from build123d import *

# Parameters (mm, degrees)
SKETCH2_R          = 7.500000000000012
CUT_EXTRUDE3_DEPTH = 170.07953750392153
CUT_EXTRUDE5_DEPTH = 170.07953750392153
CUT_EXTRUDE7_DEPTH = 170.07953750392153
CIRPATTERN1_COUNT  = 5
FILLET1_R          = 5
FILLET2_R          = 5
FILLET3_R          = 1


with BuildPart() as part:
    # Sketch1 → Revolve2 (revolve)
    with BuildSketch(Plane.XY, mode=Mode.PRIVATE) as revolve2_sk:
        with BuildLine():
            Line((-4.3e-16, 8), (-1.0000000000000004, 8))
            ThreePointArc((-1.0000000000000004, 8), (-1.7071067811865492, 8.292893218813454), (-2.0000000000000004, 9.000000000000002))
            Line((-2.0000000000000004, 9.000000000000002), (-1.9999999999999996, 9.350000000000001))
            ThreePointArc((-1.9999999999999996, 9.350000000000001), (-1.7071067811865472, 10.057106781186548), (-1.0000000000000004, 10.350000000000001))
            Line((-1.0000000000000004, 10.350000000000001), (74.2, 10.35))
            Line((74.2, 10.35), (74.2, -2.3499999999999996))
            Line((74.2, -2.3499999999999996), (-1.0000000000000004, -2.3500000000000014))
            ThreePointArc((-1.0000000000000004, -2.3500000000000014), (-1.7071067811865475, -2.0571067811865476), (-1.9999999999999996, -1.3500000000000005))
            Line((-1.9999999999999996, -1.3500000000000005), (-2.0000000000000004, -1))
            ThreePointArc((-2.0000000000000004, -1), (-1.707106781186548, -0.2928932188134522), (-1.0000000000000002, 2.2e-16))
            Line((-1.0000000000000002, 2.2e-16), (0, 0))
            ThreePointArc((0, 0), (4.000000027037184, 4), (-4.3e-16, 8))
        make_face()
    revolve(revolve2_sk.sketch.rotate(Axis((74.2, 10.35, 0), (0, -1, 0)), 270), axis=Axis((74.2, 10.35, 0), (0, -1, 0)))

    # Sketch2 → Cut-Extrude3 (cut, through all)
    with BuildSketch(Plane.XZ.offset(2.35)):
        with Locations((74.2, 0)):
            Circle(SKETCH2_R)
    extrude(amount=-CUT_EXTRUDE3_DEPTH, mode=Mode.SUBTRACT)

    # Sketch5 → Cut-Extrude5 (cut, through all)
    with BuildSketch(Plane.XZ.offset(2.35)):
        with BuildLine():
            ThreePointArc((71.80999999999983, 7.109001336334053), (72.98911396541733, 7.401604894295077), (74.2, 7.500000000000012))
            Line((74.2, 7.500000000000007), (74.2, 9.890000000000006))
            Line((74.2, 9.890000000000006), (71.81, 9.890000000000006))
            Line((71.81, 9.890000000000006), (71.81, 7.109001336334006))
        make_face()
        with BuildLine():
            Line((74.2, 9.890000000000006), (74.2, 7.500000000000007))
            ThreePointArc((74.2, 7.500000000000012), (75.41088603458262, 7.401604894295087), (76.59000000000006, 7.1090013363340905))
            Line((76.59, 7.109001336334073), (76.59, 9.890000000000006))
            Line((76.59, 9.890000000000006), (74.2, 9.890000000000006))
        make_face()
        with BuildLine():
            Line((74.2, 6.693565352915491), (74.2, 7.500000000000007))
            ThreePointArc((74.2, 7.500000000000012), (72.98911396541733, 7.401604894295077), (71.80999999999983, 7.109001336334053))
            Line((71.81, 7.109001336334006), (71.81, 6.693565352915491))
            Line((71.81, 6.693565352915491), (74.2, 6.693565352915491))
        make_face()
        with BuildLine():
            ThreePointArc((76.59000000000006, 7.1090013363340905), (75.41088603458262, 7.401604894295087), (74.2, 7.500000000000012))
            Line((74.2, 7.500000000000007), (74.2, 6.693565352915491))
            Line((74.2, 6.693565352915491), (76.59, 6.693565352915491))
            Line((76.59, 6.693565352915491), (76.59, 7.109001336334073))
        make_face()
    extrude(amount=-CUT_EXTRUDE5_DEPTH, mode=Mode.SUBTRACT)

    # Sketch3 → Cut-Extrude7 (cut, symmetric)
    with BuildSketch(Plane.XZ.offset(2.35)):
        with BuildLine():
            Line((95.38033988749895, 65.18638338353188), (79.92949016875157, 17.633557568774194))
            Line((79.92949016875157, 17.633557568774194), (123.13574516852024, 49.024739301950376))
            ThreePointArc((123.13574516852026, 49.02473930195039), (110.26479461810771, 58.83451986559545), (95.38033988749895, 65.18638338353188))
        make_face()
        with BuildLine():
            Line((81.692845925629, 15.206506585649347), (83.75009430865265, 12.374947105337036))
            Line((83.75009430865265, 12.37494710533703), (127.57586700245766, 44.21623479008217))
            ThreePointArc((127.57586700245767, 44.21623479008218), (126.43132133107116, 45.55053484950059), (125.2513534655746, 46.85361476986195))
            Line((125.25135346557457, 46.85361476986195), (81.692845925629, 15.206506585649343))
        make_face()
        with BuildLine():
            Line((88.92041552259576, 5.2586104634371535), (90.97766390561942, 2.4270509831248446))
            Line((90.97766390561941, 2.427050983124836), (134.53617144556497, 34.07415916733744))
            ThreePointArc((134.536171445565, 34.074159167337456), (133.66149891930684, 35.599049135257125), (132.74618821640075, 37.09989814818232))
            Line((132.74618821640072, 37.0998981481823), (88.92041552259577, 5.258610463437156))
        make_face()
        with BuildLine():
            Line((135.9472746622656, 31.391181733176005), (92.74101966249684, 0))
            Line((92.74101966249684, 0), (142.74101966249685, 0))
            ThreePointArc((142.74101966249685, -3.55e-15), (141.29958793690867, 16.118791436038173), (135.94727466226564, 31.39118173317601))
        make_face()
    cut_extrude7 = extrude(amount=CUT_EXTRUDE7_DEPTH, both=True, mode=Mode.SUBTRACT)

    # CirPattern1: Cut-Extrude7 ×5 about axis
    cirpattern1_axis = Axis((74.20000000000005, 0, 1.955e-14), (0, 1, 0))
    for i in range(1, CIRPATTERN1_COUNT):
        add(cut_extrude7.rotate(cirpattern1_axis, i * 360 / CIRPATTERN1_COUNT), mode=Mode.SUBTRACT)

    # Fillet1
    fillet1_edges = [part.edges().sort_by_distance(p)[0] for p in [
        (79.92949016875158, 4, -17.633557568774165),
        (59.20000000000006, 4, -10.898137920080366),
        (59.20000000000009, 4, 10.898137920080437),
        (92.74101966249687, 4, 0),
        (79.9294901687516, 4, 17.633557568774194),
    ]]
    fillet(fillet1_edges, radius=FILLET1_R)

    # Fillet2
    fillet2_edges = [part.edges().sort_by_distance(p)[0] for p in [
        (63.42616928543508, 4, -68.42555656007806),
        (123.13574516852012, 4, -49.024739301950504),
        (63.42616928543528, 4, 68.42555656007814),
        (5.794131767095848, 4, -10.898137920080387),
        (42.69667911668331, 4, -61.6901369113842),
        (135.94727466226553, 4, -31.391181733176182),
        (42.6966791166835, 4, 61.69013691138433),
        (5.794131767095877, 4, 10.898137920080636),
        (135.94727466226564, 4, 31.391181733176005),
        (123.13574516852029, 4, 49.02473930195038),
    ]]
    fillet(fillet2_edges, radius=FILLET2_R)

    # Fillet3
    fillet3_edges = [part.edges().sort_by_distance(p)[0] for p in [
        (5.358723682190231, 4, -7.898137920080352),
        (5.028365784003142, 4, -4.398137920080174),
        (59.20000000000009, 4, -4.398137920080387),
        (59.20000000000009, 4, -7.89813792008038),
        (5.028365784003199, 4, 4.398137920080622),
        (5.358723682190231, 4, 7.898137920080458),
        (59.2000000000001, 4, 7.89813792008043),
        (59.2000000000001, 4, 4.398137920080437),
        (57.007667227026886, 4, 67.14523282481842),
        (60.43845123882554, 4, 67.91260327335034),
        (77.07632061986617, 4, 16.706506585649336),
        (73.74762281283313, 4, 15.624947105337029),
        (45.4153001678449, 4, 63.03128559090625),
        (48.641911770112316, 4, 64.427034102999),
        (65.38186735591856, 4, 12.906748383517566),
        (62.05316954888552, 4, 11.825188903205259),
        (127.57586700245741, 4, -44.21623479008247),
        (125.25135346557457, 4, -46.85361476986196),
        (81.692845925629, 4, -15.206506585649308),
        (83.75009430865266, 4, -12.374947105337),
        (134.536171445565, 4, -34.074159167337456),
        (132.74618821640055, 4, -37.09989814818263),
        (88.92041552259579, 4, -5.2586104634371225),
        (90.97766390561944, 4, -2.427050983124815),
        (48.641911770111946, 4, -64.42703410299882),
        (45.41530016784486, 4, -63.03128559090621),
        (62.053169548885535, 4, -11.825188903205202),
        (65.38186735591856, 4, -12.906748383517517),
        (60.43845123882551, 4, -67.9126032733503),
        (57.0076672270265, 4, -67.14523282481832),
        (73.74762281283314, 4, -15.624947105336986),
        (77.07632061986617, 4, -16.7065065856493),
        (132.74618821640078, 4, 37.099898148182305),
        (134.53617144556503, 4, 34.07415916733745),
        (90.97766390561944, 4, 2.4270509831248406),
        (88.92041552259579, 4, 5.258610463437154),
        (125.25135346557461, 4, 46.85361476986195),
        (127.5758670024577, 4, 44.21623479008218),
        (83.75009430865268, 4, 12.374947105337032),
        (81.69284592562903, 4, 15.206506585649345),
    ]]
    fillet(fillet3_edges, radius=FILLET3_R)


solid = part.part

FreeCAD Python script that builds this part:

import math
import FreeCAD as App
import Part
import Sketcher
Q = App.Units.Quantity


def edges_at(feature, points):
    """Names of the edges that pass closest to the given points."""
    edges = feature.Shape.Edges
    near = lambda p: min(range(len(edges)), key=lambda i: edges[i].distToShape(Part.Vertex(*p))[0])
    return sorted({f"Edge{near(p) + 1}" for p in points})

doc = App.newDocument("Part")
body = doc.addObject("PartDesign::Body", "Body")

sketch1 = body.newObject("Sketcher::SketchObject", "Sketch")
sketch1.AttachmentSupport = (doc.getObject("XY_Plane"), [""])
sketch1.MapMode = "FlatFace"
sketch1.addGeometry([
    Part.LineSegment(App.Vector(-1, 8, 0), App.Vector(0, 8, 0)),
    Part.ArcOfCircle(Part.Circle(App.Vector(0, 4, 0), App.Vector(0, 0, 1), 4), math.radians(-90), math.radians(90)),
    Part.LineSegment(App.Vector(0, 0, 0), App.Vector(-1, 0, 0)),
    Part.ArcOfCircle(Part.Circle(App.Vector(-1, -1, 0), App.Vector(0, 0, 1), 1), math.radians(90), math.radians(180)),
    Part.LineSegment(App.Vector(-2, -1, 0), App.Vector(-2, -1.35, 0)),
    Part.ArcOfCircle(Part.Circle(App.Vector(-1, -1.35, 0), App.Vector(0, 0, 1), 1), math.radians(180), math.radians(270)),
    Part.LineSegment(App.Vector(-1, -2.35, 0), App.Vector(74.2, -2.35, 0)),
    Part.LineSegment(App.Vector(74.2, -2.35, 0), App.Vector(74.2, 10.35, 0)),
    Part.LineSegment(App.Vector(74.2, 10.35, 0), App.Vector(-1, 10.35, 0)),
    Part.ArcOfCircle(Part.Circle(App.Vector(-1, 9.35, 0), App.Vector(0, 0, 1), 1), math.radians(90), math.radians(180)),
    Part.LineSegment(App.Vector(-2, 9.35, 0), App.Vector(-2, 9, 0)),
    Part.ArcOfCircle(Part.Circle(App.Vector(-1, 9, 0), App.Vector(0, 0, 1), 1), math.radians(180), math.radians(270)),
], False)
sketch1.addGeometry(Part.LineSegment(App.Vector(74.2, 10.35, 0), App.Vector(74.2, -2.35, 0)), True)
sketch1.addConstraint([
    Sketcher.Constraint("Tangent", 0, 2, 1, 2),
    Sketcher.Constraint("Tangent", 1, 1, 2, 1),
    Sketcher.Constraint("Tangent", 2, 2, 3, 1),
    Sketcher.Constraint("Tangent", 3, 2, 4, 1),
    Sketcher.Constraint("Tangent", 4, 2, 5, 1),
    Sketcher.Constraint("Tangent", 5, 2, 6, 1),
    Sketcher.Constraint("Coincident", 6, 2, 7, 1),
    Sketcher.Constraint("Coincident", 7, 2, 8, 1),
    Sketcher.Constraint("Tangent", 8, 2, 9, 1),
    Sketcher.Constraint("Tangent", 9, 2, 10, 1),
    Sketcher.Constraint("Tangent", 10, 2, 11, 1),
    Sketcher.Constraint("Tangent", 11, 2, 0, 1),
    Sketcher.Constraint("Horizontal", 0),
    Sketcher.Constraint("Horizontal", 2),
    Sketcher.Constraint("Vertical", 4),
    Sketcher.Constraint("Horizontal", 6),
    Sketcher.Constraint("Vertical", 7),
    Sketcher.Constraint("Horizontal", 8),
    Sketcher.Constraint("Vertical", 10),
    Sketcher.Constraint("Vertical", 12),
    Sketcher.Constraint("Coincident", 1, 1, -1, 1),
    Sketcher.Constraint("Coincident", 12, 1, 7, 2),
    Sketcher.Constraint("Equal", 3, 5),
    Sketcher.Constraint("Equal", 5, 9),
    Sketcher.Constraint("Equal", 9, 11),
    Sketcher.Constraint("Horizontal", 5, 2, 12, 2),
    Sketcher.Constraint("Vertical", 5, 3, 9, 3),
    Sketcher.Constraint("Equal", 4, 10),
    Sketcher.Constraint("Radius", 1, Q("4 mm")),
    Sketcher.Constraint("Radius", 3, Q("1 mm")),
    Sketcher.Constraint("DistanceX", 0, 1, 0, 2, Q("1 mm")),
    Sketcher.Constraint("DistanceX", 6, 1, 6, 2, Q("75.2 mm")),
    Sketcher.Constraint("DistanceY", 7, 1, 7, 2, Q("12.7 mm")),
])
revolution = body.newObject("PartDesign::Revolution", "Revolution")
revolution.Profile = sketch1
revolution.ReferenceAxis = (sketch1, ["Axis0"])
revolution.Angle = 360

sketch2 = body.newObject("Sketcher::SketchObject", "Sketch001")
sketch2.AttachmentSupport = (doc.getObject("XZ_Plane"), [""])
sketch2.MapMode = "FlatFace"
sketch2.AttachmentOffset = App.Placement(App.Vector(0, 0, 2.35), App.Rotation())
sketch2.addGeometry(Part.Circle(App.Vector(74.2, 0, 0), App.Vector(0, 0, 1), 7.5), False)
sketch2.addConstraint([
    Sketcher.Constraint("PointOnObject", 0, 3, -1),
    Sketcher.Constraint("Diameter", 0, Q("15 mm")),
    Sketcher.Constraint("DistanceX", -1, 1, 0, 3, Q("74.2 mm")),
])
pocket1 = body.newObject("PartDesign::Pocket", "Pocket")
pocket1.Profile = sketch2
pocket1.Type = "ThroughAll"

sketch3 = body.newObject("Sketcher::SketchObject", "Sketch002")
sketch3.AttachmentSupport = (doc.getObject("XZ_Plane"), [""])
sketch3.MapMode = "FlatFace"
sketch3.AttachmentOffset = App.Placement(App.Vector(0, 0, 2.35), App.Rotation())
sketch3.addGeometry([
    Part.LineSegment(App.Vector(76.59, 9.89, 0), App.Vector(71.81, 9.89, 0)),
    Part.LineSegment(App.Vector(71.81, 9.89, 0), App.Vector(71.81, 6.693565, 0)),
    Part.LineSegment(App.Vector(71.81, 6.693565, 0), App.Vector(76.59, 6.693565, 0)),
    Part.LineSegment(App.Vector(76.59, 6.693565, 0), App.Vector(76.59, 9.89, 0)),
], False)
sketch3.addConstraint([
    Sketcher.Constraint("Coincident", 0, 2, 1, 1),
    Sketcher.Constraint("Coincident", 1, 2, 2, 1),
    Sketcher.Constraint("Coincident", 2, 2, 3, 1),
    Sketcher.Constraint("Coincident", 3, 2, 0, 1),
    Sketcher.Constraint("Horizontal", 0),
    Sketcher.Constraint("Vertical", 1),
    Sketcher.Constraint("Horizontal", 2),
    Sketcher.Constraint("Vertical", 3),
    Sketcher.Constraint("DistanceX", 0, 2, 0, 1, Q("4.78 mm")),
    Sketcher.Constraint("DistanceX", -1, 1, 0, 2, Q("71.81 mm")),
    Sketcher.Constraint("DistanceY", -1, 1, 0, 2, Q("9.89 mm")),
    Sketcher.Constraint("DistanceY", 1, 2, 1, 1, Q("3.196435 mm")),
])
pocket2 = body.newObject("PartDesign::Pocket", "Pocket001")
pocket2.Profile = sketch3
pocket2.Type = "ThroughAll"

sketch4 = body.newObject("Sketcher::SketchObject", "Sketch003")
sketch4.AttachmentSupport = (doc.getObject("XZ_Plane"), [""])
sketch4.MapMode = "FlatFace"
sketch4.AttachmentOffset = App.Placement(App.Vector(0, 0, 2.35), App.Rotation())
sketch4.addGeometry([
    Part.LineSegment(App.Vector(95.38034, 65.186383, 0), App.Vector(79.92949, 17.633558, 0)),
    Part.LineSegment(App.Vector(79.92949, 17.633558, 0), App.Vector(123.135745, 49.024739, 0)),
    Part.ArcOfCircle(Part.Circle(App.Vector(77.330552, 2.274479, 0), App.Vector(0, 0, 1), 65.45), math.radians(45.585017), math.radians(73.99151)),
    Part.LineSegment(App.Vector(81.692846, 15.206507, 0), App.Vector(83.750094, 12.374947, 0)),
    Part.LineSegment(App.Vector(83.750094, 12.374947, 0), App.Vector(127.575867, 44.216235, 0)),
    Part.ArcOfCircle(Part.Circle(App.Vector(77.330552, 2.274479, 0), App.Vector(0, 0, 1), 65.45), math.radians(39.853091), math.radians(42.931024)),
    Part.LineSegment(App.Vector(125.251353, 46.853615, 0), App.Vector(81.692846, 15.206507, 0)),
    Part.LineSegment(App.Vector(88.920416, 5.25861, 0), App.Vector(90.977664, 2.427051, 0)),
    Part.LineSegment(App.Vector(90.977664, 2.427051, 0), App.Vector(134.536171, 34.074159, 0)),
    Part.ArcOfCircle(Part.Circle(App.Vector(77.330552, 2.274479, 0), App.Vector(0, 0, 1), 65.45), math.radians(29.068976), math.radians(32.146909)),
    Part.LineSegment(App.Vector(132.746188, 37.099898, 0), App.Vector(88.920416, 5.25861, 0)),
    Part.LineSegment(App.Vector(135.947275, 31.391182, 0), App.Vector(92.74102, 0, 0)),
    Part.LineSegment(App.Vector(92.74102, 0, 0), App.Vector(142.74102, 0, 0)),
    Part.ArcOfCircle(Part.Circle(App.Vector(77.330552, 2.274479, 0), App.Vector(0, 0, 1), 65.45), math.radians(-1.99151), math.radians(26.414983)),
], False)
sketch4.addConstraint([
    Sketcher.Constraint("Coincident", 0, 2, 1, 1),
    Sketcher.Constraint("Coincident", 1, 2, 2, 1),
    Sketcher.Constraint("Coincident", 2, 2, 0, 1),
    Sketcher.Constraint("Coincident", 3, 2, 4, 1),
    Sketcher.Constraint("Coincident", 4, 2, 5, 1),
    Sketcher.Constraint("Coincident", 5, 2, 6, 1),
    Sketcher.Constraint("Coincident", 6, 2, 3, 1),
    Sketcher.Constraint("Coincident", 7, 2, 8, 1),
    Sketcher.Constraint("Coincident", 8, 2, 9, 1),
    Sketcher.Constraint("Coincident", 9, 2, 10, 1),
    Sketcher.Constraint("Coincident", 10, 2, 7, 1),
    Sketcher.Constraint("Coincident", 11, 2, 12, 1),
    Sketcher.Constraint("Coincident", 12, 2, 13, 1),
    Sketcher.Constraint("Coincident", 13, 2, 11, 1),
    Sketcher.Constraint("Horizontal", 12),
    Sketcher.Constraint("Coincident", 5, 3, 2, 3),
    Sketcher.Constraint("Coincident", 9, 3, 2, 3),
    Sketcher.Constraint("Coincident", 13, 3, 2, 3),
    Sketcher.Constraint("Equal", 2, 5),
    Sketcher.Constraint("Equal", 5, 9),
    Sketcher.Constraint("Equal", 9, 13),
    Sketcher.Constraint("PointOnObject", 11, 2, -1),
    Sketcher.Constraint("Perpendicular", 1, 3),
    Sketcher.Constraint("Perpendicular", 3, 4),
    Sketcher.Constraint("Parallel", 4, 6),
    Sketcher.Constraint("Perpendicular", 6, 7),
    Sketcher.Constraint("Perpendicular", 7, 8),
    Sketcher.Constraint("Parallel", 8, 10),
    Sketcher.Constraint("Parallel", 10, 11),
    Sketcher.Constraint("Equal", 3, 7),
    Sketcher.Constraint("Equal", 6, 8),
    Sketcher.Constraint("Equal", 4, 10),
    Sketcher.Constraint("Equal", 1, 11),
    Sketcher.Constraint("DistanceX", 12, 1, 12, 2, Q("50 mm")),
    Sketcher.Constraint("Angle", 0, Q("-108 deg")),
    Sketcher.Constraint("Angle", 1, Q("36 deg")),
    Sketcher.Constraint("Radius", 2, Q("65.45 mm")),
    Sketcher.Constraint("Distance", 0, Q("50 mm")),
    Sketcher.Constraint("Distance", 3, Q("3.5 mm")),
    Sketcher.Constraint("DistanceY", -1, 1, 9, 2, Q("37.099898 mm")),
    Sketcher.Constraint("Distance", 1, Q("53.405868 mm")),
    Sketcher.Constraint("DistanceX", -1, 1, 0, 2, Q("79.92949 mm")),
    Sketcher.Constraint("DistanceY", -1, 1, 7, 2, Q("2.427051 mm")),
])
pocket3 = body.newObject("PartDesign::Pocket", "Pocket002")
pocket3.Profile = sketch4
pocket3.Length = 340.159075
pocket3.Midplane = True
doc.recompute()

datumline = body.newObject("PartDesign::Line", "DatumLine")
datumline.Placement = App.Placement(App.Vector(74.2, 0, 0), App.Rotation(App.Vector(0, 0, 1), App.Vector(0, 1, 0)))
polarpattern = body.newObject("PartDesign::PolarPattern", "PolarPattern")
polarpattern.Originals = [pocket3]
polarpattern.Axis = (datumline, [""])
polarpattern.Angle = 360
polarpattern.Occurrences = 5
body.Tip = polarpattern
doc.recompute()

fillet = body.newObject("PartDesign::Fillet", "Fillet")
fillet.Base = (polarpattern, edges_at(polarpattern, [
    (79.929, 4, -17.634),
    (59.2, 4, -10.898),
    (59.2, 4, 10.898),
    (92.741, 4, 0),
    (79.929, 4, 17.634),
]))
fillet.Radius = 5
doc.recompute()

fillet2 = body.newObject("PartDesign::Fillet", "Fillet001")
fillet2.Base = (fillet, edges_at(fillet, [
    (63.426, 4, -68.426),
    (123.136, 4, -49.025),
    (63.426, 4, 68.426),
    (5.794, 4, -10.898),
    (42.697, 4, -61.69),
    (135.947, 4, -31.391),
    (42.697, 4, 61.69),
    (5.794, 4, 10.898),
    (135.947, 4, 31.391),
    (123.136, 4, 49.025),
]))
fillet2.Radius = 5
doc.recompute()

fillet3 = body.newObject("PartDesign::Fillet", "Fillet002")
fillet3.Base = (fillet2, edges_at(fillet2, [
    (5.359, 4, -7.898),
    (5.028, 4, -4.398),
    (59.2, 4, -4.398),
    (59.2, 4, -7.898),
    (5.028, 4, 4.398),
    (5.359, 4, 7.898),
    (59.2, 4, 7.898),
    (59.2, 4, 4.398),
    (57.008, 4, 67.145),
    (60.438, 4, 67.913),
    (77.076, 4, 16.707),
    (73.748, 4, 15.625),
    (45.415, 4, 63.031),
    (48.642, 4, 64.427),
    (65.382, 4, 12.907),
    (62.053, 4, 11.825),
    (127.576, 4, -44.216),
    (125.251, 4, -46.854),
    (81.693, 4, -15.207),
    (83.75, 4, -12.375),
    (134.536, 4, -34.074),
    (132.746, 4, -37.1),
    (88.92, 4, -5.259),
    (90.978, 4, -2.427),
    (48.642, 4, -64.427),
    (45.415, 4, -63.031),
    (62.053, 4, -11.825),
    (65.382, 4, -12.907),
    (60.438, 4, -67.913),
    (57.008, 4, -67.145),
    (73.748, 4, -15.625),
    (77.076, 4, -16.707),
    (132.746, 4, 37.1),
    (134.536, 4, 34.074),
    (90.978, 4, 2.427),
    (88.92, 4, 5.259),
    (125.251, 4, 46.854),
    (127.576, 4, 44.216),
    (83.75, 4, 12.375),
    (81.693, 4, 15.207),
]))
fillet3.Radius = 1

doc.recompute()
